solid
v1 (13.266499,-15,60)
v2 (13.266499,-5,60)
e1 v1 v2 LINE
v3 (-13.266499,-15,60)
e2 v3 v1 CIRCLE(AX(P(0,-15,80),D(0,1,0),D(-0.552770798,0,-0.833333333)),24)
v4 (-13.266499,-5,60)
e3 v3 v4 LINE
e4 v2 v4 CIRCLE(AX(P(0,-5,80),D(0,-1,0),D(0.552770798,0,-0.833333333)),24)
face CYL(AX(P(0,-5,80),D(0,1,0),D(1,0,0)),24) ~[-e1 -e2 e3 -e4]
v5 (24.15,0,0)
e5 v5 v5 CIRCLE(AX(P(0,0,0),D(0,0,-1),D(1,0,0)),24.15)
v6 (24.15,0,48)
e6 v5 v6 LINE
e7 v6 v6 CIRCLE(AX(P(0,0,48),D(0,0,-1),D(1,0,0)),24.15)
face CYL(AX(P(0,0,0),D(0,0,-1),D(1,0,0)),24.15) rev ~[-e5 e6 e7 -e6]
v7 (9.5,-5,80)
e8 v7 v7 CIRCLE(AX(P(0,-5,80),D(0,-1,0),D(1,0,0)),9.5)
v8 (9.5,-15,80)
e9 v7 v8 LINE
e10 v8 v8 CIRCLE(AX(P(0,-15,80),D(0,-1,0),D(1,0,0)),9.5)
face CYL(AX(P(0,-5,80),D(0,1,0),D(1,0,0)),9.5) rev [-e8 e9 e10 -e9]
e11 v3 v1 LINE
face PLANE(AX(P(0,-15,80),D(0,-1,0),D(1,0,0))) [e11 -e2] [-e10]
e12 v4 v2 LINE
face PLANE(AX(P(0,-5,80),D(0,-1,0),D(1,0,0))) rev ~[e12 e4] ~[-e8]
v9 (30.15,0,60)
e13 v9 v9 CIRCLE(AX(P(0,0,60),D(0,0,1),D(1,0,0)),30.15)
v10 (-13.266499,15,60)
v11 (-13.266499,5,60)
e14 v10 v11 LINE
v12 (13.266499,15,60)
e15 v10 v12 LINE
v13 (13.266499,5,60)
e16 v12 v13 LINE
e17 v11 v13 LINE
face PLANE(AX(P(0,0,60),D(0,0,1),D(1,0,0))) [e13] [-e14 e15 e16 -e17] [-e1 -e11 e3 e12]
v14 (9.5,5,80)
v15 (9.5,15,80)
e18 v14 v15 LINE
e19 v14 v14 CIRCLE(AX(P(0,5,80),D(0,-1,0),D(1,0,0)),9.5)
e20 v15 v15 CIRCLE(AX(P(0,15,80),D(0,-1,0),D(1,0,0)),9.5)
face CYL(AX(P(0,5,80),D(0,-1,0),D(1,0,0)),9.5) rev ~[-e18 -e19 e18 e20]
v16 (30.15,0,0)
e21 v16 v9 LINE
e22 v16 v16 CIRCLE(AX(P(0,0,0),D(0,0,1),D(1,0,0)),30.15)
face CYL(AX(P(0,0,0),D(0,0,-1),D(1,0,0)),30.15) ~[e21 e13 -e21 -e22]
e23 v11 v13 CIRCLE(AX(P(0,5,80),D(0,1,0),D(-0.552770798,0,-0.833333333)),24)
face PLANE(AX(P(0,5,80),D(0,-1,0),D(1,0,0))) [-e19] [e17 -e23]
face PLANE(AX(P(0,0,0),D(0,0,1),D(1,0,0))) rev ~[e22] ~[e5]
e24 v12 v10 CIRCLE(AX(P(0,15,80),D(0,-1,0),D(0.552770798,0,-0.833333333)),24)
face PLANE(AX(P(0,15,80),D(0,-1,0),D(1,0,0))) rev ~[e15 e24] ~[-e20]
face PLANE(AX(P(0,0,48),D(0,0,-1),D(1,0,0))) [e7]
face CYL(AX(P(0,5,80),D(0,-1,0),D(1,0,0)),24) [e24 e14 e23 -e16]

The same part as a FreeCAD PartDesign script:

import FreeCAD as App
import Part
import Sketcher
Q = App.Units.Quantity

doc = App.newDocument("Part")
body = doc.addObject("PartDesign::Body", "Body")

# Sketch on XY plane
sketch1 = doc.addObject("Sketcher::SketchObject", "Sketch")
body.addObject(sketch1)
sketch1.AttachmentSupport = (doc.XY_Plane, [""])
sketch1.MapMode = "FlatFace"
sketch1.addGeometry(Part.Circle(App.Vector(0, 0, 0), App.Vector(0, 0, 1), 30), False)
sketch1.addConstraint([
    Sketcher.Constraint("Coincident", 0, 3, -1, 1),
    Sketcher.Constraint("Diameter", 0, Q("60.3 mm")),
])
pad1 = doc.addObject("PartDesign::Pad", "Pad")
body.addObject(pad1)
pad1.Profile = sketch1
pad1.Length = 60

# Sketch on XY plane
sketch2 = doc.addObject("Sketcher::SketchObject", "Sketch001")
body.addObject(sketch2)
sketch2.AttachmentSupport = (doc.XY_Plane, [""])
sketch2.MapMode = "FlatFace"
sketch2.addGeometry(Part.Circle(App.Vector(0, 0, 0), App.Vector(0, 0, 1), 24), False)
sketch2.addConstraint([
    Sketcher.Constraint("Coincident", 0, 3, -1, 1),
    Sketcher.Constraint("Diameter", 0, Q("48.3 mm")),
])
pocket1 = doc.addObject("PartDesign::Pocket", "Pocket")
body.addObject(pocket1)
pocket1.Profile = sketch2
pocket1.Length = 48
pocket1.Reversed = True

# Sketch on XZ plane
sketch3 = doc.addObject("Sketcher::SketchObject", "Sketch002")
body.addObject(sketch3)
sketch3.AttachmentSupport = (doc.XZ_Plane, [""])
sketch3.MapMode = "FlatFace"
sketch3.AttachmentOffset = App.Placement(App.Vector(0, 0, 5), App.Rotation())
sketch3.addGeometry([
    Part.Circle(App.Vector(0, 80, 0), App.Vector(0, 0, 1), 24),
    Part.Circle(App.Vector(0, 80, 0), App.Vector(0, 0, 1), 10),
], False)
sketch3.addConstraint([
    Sketcher.Constraint("Coincident", 1, 3, 0, 3),
    Sketcher.Constraint("PointOnObject", 0, 3, -2),
    Sketcher.Constraint("Diameter", 0, Q("48 mm")),
    Sketcher.Constraint("Diameter", 1, Q("19 mm")),
    Sketcher.Constraint("DistanceY", -1, 1, 0, 3, Q("80 mm")),
])
pad2 = doc.addObject("PartDesign::Pad", "Pad001")
body.addObject(pad2)
pad2.Profile = sketch3
pad2.Length = 10

# Sketch on XZ plane
sketch4 = doc.addObject("Sketcher::SketchObject", "Sketch003")
body.addObject(sketch4)
sketch4.AttachmentSupport = (doc.XZ_Plane, [""])
sketch4.MapMode = "FlatFace"
sketch4.AttachmentOffset = App.Placement(App.Vector(0, 0, -5), App.Rotation())
sketch4.addGeometry([
    Part.Circle(App.Vector(0, 80, 0), App.Vector(0, 0, 1), 24),
    Part.Circle(App.Vector(0, 80, 0), App.Vector(0, 0, 1), 10),
], False)
sketch4.addConstraint([
    Sketcher.Constraint("Coincident", 1, 3, 0, 3),
    Sketcher.Constraint("PointOnObject", 0, 3, -2),
    Sketcher.Constraint("Diameter", 0, Q("48 mm")),
    Sketcher.Constraint("Diameter", 1, Q("19 mm")),
    Sketcher.Constraint("DistanceY", -1, 1, 0, 3, Q("80 mm")),
])
pad3 = doc.addObject("PartDesign::Pad", "Pad002")
body.addObject(pad3)
pad3.Profile = sketch4
pad3.Length = 10
pad3.Reversed = True

doc.recompute()
